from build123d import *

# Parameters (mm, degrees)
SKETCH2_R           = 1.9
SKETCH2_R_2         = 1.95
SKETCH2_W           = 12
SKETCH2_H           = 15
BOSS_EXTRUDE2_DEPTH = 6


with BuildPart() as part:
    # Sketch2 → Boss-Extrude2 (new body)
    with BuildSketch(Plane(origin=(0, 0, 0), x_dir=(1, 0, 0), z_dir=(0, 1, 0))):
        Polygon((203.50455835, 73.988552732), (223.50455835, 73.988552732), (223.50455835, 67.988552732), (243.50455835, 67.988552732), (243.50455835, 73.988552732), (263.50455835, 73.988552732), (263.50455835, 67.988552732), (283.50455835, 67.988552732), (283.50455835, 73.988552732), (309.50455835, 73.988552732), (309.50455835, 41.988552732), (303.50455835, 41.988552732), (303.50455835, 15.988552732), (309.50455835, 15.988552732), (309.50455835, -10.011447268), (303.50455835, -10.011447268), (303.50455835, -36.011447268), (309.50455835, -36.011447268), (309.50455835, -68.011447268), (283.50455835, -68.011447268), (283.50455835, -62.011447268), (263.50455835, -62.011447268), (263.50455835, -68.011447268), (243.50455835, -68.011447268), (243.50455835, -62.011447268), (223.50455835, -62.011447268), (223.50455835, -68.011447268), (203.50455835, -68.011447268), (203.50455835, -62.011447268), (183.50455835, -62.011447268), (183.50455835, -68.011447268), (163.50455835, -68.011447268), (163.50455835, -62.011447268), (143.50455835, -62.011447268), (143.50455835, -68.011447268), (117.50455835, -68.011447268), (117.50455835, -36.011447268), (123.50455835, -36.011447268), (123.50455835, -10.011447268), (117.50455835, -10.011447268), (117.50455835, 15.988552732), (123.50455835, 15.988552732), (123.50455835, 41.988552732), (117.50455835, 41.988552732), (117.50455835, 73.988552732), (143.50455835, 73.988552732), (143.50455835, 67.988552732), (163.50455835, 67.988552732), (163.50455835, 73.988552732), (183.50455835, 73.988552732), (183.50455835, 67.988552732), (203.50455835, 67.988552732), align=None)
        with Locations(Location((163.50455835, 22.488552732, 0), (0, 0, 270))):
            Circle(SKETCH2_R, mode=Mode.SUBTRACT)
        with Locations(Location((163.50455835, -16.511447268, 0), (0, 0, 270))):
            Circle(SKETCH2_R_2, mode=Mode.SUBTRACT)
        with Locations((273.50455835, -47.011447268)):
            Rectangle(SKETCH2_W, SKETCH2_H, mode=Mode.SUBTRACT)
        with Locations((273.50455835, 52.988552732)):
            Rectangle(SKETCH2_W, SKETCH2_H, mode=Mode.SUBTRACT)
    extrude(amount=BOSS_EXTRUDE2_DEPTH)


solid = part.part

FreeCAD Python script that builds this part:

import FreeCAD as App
import Part
import Sketcher

doc = App.newDocument("Part")
body = doc.addObject("PartDesign::Body", "Body")

sketch1 = body.newObject("Sketcher::SketchObject", "Sketch")
sketch1.AttachmentSupport = (doc.getObject("XZ_Plane"), [""])
sketch1.MapMode = "FlatFace"
sketch1.addGeometry([
    Part.LineSegment(App.Vector(223.5, -74, 0), App.Vector(203.5, -74, 0)),
    Part.LineSegment(App.Vector(203.5, -74, 0), App.Vector(203.5, -68, 0)),
    Part.LineSegment(App.Vector(203.5, -68, 0), App.Vector(183.5, -68, 0)),
    Part.LineSegment(App.Vector(183.5, -68, 0), App.Vector(183.5, -74, 0)),
    Part.LineSegment(App.Vector(183.5, -74, 0), App.Vector(163.5, -74, 0)),
    Part.LineSegment(App.Vector(163.5, -74, 0), App.Vector(163.5, -68, 0)),
    Part.LineSegment(App.Vector(163.5, -68, 0), App.Vector(143.5, -68, 0)),
    Part.LineSegment(App.Vector(143.5, -68, 0), App.Vector(143.5, -74, 0)),
    Part.LineSegment(App.Vector(143.5, -74, 0), App.Vector(117.5, -74, 0)),
    Part.LineSegment(App.Vector(117.5, -74, 0), App.Vector(117.5, -42, 0)),
    Part.LineSegment(App.Vector(117.5, -42, 0), App.Vector(123.5, -42, 0)),
    Part.LineSegment(App.Vector(123.5, -42, 0), App.Vector(123.5, -16, 0)),
    Part.LineSegment(App.Vector(123.5, -16, 0), App.Vector(117.5, -16, 0)),
    Part.LineSegment(App.Vector(117.5, -16, 0), App.Vector(117.5, 10, 0)),
    Part.LineSegment(App.Vector(117.5, 10, 0), App.Vector(123.5, 10, 0)),
    Part.LineSegment(App.Vector(123.5, 10, 0), App.Vector(123.5, 36, 0)),
    Part.LineSegment(App.Vector(123.5, 36, 0), App.Vector(117.5, 36, 0)),
    Part.LineSegment(App.Vector(117.5, 36, 0), App.Vector(117.5, 68, 0)),
    Part.LineSegment(App.Vector(117.5, 68, 0), App.Vector(143.5, 68, 0)),
    Part.LineSegment(App.Vector(143.5, 68, 0), App.Vector(143.5, 62, 0)),
    Part.LineSegment(App.Vector(143.5, 62, 0), App.Vector(163.5, 62, 0)),
    Part.LineSegment(App.Vector(163.5, 62, 0), App.Vector(163.5, 68, 0)),
    Part.LineSegment(App.Vector(163.5, 68, 0), App.Vector(183.5, 68, 0)),
    Part.LineSegment(App.Vector(183.5, 68, 0), App.Vector(183.5, 62, 0)),
    Part.LineSegment(App.Vector(183.5, 62, 0), App.Vector(203.5, 62, 0)),
    Part.LineSegment(App.Vector(203.5, 62, 0), App.Vector(203.5, 68, 0)),
    Part.LineSegment(App.Vector(203.5, 68, 0), App.Vector(223.5, 68, 0)),
    Part.LineSegment(App.Vector(223.5, 68, 0), App.Vector(223.5, 62, 0)),
    Part.LineSegment(App.Vector(223.5, 62, 0), App.Vector(243.5, 62, 0)),
    Part.LineSegment(App.Vector(243.5, 62, 0), App.Vector(243.5, 68, 0)),
    Part.LineSegment(App.Vector(243.5, 68, 0), App.Vector(263.5, 68, 0)),
    Part.LineSegment(App.Vector(263.5, 68, 0), App.Vector(263.5, 62, 0)),
    Part.LineSegment(App.Vector(263.5, 62, 0), App.Vector(283.5, 62, 0)),
    Part.LineSegment(App.Vector(283.5, 62, 0), App.Vector(283.5, 68, 0)),
    Part.LineSegment(App.Vector(283.5, 68, 0), App.Vector(309.5, 68, 0)),
    Part.LineSegment(App.Vector(309.5, 68, 0), App.Vector(309.5, 36, 0)),
    Part.LineSegment(App.Vector(309.5, 36, 0), App.Vector(303.5, 36, 0)),
    Part.LineSegment(App.Vector(303.5, 36, 0), App.Vector(303.5, 10, 0)),
    Part.LineSegment(App.Vector(303.5, 10, 0), App.Vector(309.5, 10, 0)),
    Part.LineSegment(App.Vector(309.5, 10, 0), App.Vector(309.5, -16, 0)),
    Part.LineSegment(App.Vector(309.5, -16, 0), App.Vector(303.5, -16, 0)),
    Part.LineSegment(App.Vector(303.5, -16, 0), App.Vector(303.5, -42, 0)),
    Part.LineSegment(App.Vector(303.5, -42, 0), App.Vector(309.5, -42, 0)),
    Part.LineSegment(App.Vector(309.5, -42, 0), App.Vector(309.5, -74, 0)),
    Part.LineSegment(App.Vector(309.5, -74, 0), App.Vector(283.5, -74, 0)),
    Part.LineSegment(App.Vector(283.5, -74, 0), App.Vector(283.5, -68, 0)),
    Part.LineSegment(App.Vector(283.5, -68, 0), App.Vector(263.5, -68, 0)),
    Part.LineSegment(App.Vector(263.5, -68, 0), App.Vector(263.5, -74, 0)),
    Part.LineSegment(App.Vector(263.5, -74, 0), App.Vector(243.5, -74, 0)),
    Part.LineSegment(App.Vector(243.5, -74, 0), App.Vector(243.5, -68, 0)),
    Part.LineSegment(App.Vector(243.5, -68, 0), App.Vector(223.5, -68, 0)),
    Part.LineSegment(App.Vector(223.5, -68, 0), App.Vector(223.5, -74, 0)),
    Part.LineSegment(App.Vector(267.5, 54.5, 0), App.Vector(267.5, 39.5, 0)),
    Part.LineSegment(App.Vector(267.5, 39.5, 0), App.Vector(279.5, 39.5, 0)),
    Part.LineSegment(App.Vector(279.5, 39.5, 0), App.Vector(279.5, 54.5, 0)),
    Part.LineSegment(App.Vector(279.5, 54.5, 0), App.Vector(267.5, 54.5, 0)),
    Part.Circle(App.Vector(163.5, 16.5, 0), App.Vector(0, 0, 1), 1.9),
    Part.LineSegment(App.Vector(267.5, -45.5, 0), App.Vector(267.5, -60.5, 0)),
    Part.LineSegment(App.Vector(267.5, -60.5, 0), App.Vector(279.5, -60.5, 0)),
    Part.LineSegment(App.Vector(279.5, -60.5, 0), App.Vector(279.5, -45.5, 0)),
    Part.LineSegment(App.Vector(279.5, -45.5, 0), App.Vector(267.5, -45.5, 0)),
    Part.Circle(App.Vector(163.5, -22.5, 0), App.Vector(0, 0, 1), 1.9),
], False)
sketch1.addConstraint([
    Sketcher.Constraint("Coincident", 0, 2, 1, 1),
    Sketcher.Constraint("Coincident", 1, 2, 2, 1),
    Sketcher.Constraint("Coincident", 2, 2, 3, 1),
    Sketcher.Constraint("Coincident", 3, 2, 4, 1),
    Sketcher.Constraint("Coincident", 4, 2, 5, 1),
    Sketcher.Constraint("Coincident", 5, 2, 6, 1),
    Sketcher.Constraint("Coincident", 6, 2, 7, 1),
    Sketcher.Constraint("Coincident", 7, 2, 8, 1),
    Sketcher.Constraint("Coincident", 8, 2, 9, 1),
    Sketcher.Constraint("Coincident", 9, 2, 10, 1),
    Sketcher.Constraint("Coincident", 10, 2, 11, 1),
    Sketcher.Constraint("Coincident", 11, 2, 12, 1),
    Sketcher.Constraint("Coincident", 12, 2, 13, 1),
    Sketcher.Constraint("Coincident", 13, 2, 14, 1),
    Sketcher.Constraint("Coincident", 14, 2, 15, 1),
    Sketcher.Constraint("Coincident", 15, 2, 16, 1),
    Sketcher.Constraint("Coincident", 16, 2, 17, 1),
    Sketcher.Constraint("Coincident", 17, 2, 18, 1),
    Sketcher.Constraint("Coincident", 18, 2, 19, 1),
    Sketcher.Constraint("Coincident", 19, 2, 20, 1),
    Sketcher.Constraint("Coincident", 20, 2, 21, 1),
    Sketcher.Constraint("Coincident", 21, 2, 22, 1),
    Sketcher.Constraint("Coincident", 22, 2, 23, 1),
    Sketcher.Constraint("Coincident", 23, 2, 24, 1),
    Sketcher.Constraint("Coincident", 24, 2, 25, 1),
    Sketcher.Constraint("Coincident", 25, 2, 26, 1),
    Sketcher.Constraint("Coincident", 26, 2, 27, 1),
    Sketcher.Constraint("Coincident", 27, 2, 28, 1),
    Sketcher.Constraint("Coincident", 28, 2, 29, 1),
    Sketcher.Constraint("Coincident", 29, 2, 30, 1),
    Sketcher.Constraint("Coincident", 30, 2, 31, 1),
    Sketcher.Constraint("Coincident", 31, 2, 32, 1),
    Sketcher.Constraint("Coincident", 32, 2, 33, 1),
    Sketcher.Constraint("Coincident", 33, 2, 34, 1),
    Sketcher.Constraint("Coincident", 34, 2, 35, 1),
    Sketcher.Constraint("Coincident", 35, 2, 36, 1),
    Sketcher.Constraint("Coincident", 36, 2, 37, 1),
    Sketcher.Constraint("Coincident", 37, 2, 38, 1),
    Sketcher.Constraint("Coincident", 38, 2, 39, 1),
    Sketcher.Constraint("Coincident", 39, 2, 40, 1),
    Sketcher.Constraint("Coincident", 40, 2, 41, 1),
    Sketcher.Constraint("Coincident", 41, 2, 42, 1),
    Sketcher.Constraint("Coincident", 42, 2, 43, 1),
    Sketcher.Constraint("Coincident", 43, 2, 44, 1),
    Sketcher.Constraint("Coincident", 44, 2, 45, 1),
    Sketcher.Constraint("Coincident", 45, 2, 46, 1),
    Sketcher.Constraint("Coincident", 46, 2, 47, 1),
    Sketcher.Constraint("Coincident", 47, 2, 48, 1),
    Sketcher.Constraint("Coincident", 48, 2, 49, 1),
    Sketcher.Constraint("Coincident", 49, 2, 50, 1),
    Sketcher.Constraint("Coincident", 50, 2, 51, 1),
    Sketcher.Constraint("Coincident", 51, 2, 0, 1),
    Sketcher.Constraint("Coincident", 52, 2, 53, 1),
    Sketcher.Constraint("Coincident", 53, 2, 54, 1),
    Sketcher.Constraint("Coincident", 54, 2, 55, 1),
    Sketcher.Constraint("Coincident", 55, 2, 52, 1),
    Sketcher.Constraint("Coincident", 57, 2, 58, 1),
    Sketcher.Constraint("Coincident", 58, 2, 59, 1),
    Sketcher.Constraint("Coincident", 59, 2, 60, 1),
    Sketcher.Constraint("Coincident", 60, 2, 57, 1),
    Sketcher.Constraint("Horizontal", 0),
    Sketcher.Constraint("Vertical", 1),
    Sketcher.Constraint("Horizontal", 2),
    Sketcher.Constraint("Vertical", 3),
    Sketcher.Constraint("Horizontal", 4),
    Sketcher.Constraint("Vertical", 5),
    Sketcher.Constraint("Horizontal", 6),
    Sketcher.Constraint("Vertical", 7),
    Sketcher.Constraint("Horizontal", 8),
    Sketcher.Constraint("Vertical", 9),
    Sketcher.Constraint("Horizontal", 10),
    Sketcher.Constraint("Vertical", 11),
    Sketcher.Constraint("Horizontal", 12),
    Sketcher.Constraint("Vertical", 13),
    Sketcher.Constraint("Horizontal", 14),
    Sketcher.Constraint("Vertical", 15),
    Sketcher.Constraint("Horizontal", 16),
    Sketcher.Constraint("Vertical", 17),
    Sketcher.Constraint("Horizontal", 18),
    Sketcher.Constraint("Vertical", 19),
    Sketcher.Constraint("Horizontal", 20),
    Sketcher.Constraint("Vertical", 21),
    Sketcher.Constraint("Horizontal", 22),
    Sketcher.Constraint("Vertical", 23),
    Sketcher.Constraint("Horizontal", 24),
    Sketcher.Constraint("Vertical", 25),
    Sketcher.Constraint("Horizontal", 26),
    Sketcher.Constraint("Vertical", 27),
    Sketcher.Constraint("Horizontal", 28),
    Sketcher.Constraint("Vertical", 29),
    Sketcher.Constraint("Horizontal", 30),
    Sketcher.Constraint("Vertical", 31),
    Sketcher.Constraint("Horizontal", 32),
    Sketcher.Constraint("Vertical", 33),
    Sketcher.Constraint("Horizontal", 34),
    Sketcher.Constraint("Vertical", 35),
    Sketcher.Constraint("Horizontal", 36),
    Sketcher.Constraint("Vertical", 37),
    Sketcher.Constraint("Horizontal", 38),
    Sketcher.Constraint("Vertical", 39),
    Sketcher.Constraint("Horizontal", 40),
    Sketcher.Constraint("Vertical", 41),
    Sketcher.Constraint("Horizontal", 42),
    Sketcher.Constraint("Vertical", 43),
    Sketcher.Constraint("Horizontal", 44),
    Sketcher.Constraint("Vertical", 45),
    Sketcher.Constraint("Horizontal", 46),
    Sketcher.Constraint("Vertical", 47),
    Sketcher.Constraint("Horizontal", 48),
    Sketcher.Constraint("Vertical", 49),
    Sketcher.Constraint("Horizontal", 50),
    Sketcher.Constraint("Vertical", 51),
    Sketcher.Constraint("Vertical", 52),
    Sketcher.Constraint("Horizontal", 53),
    Sketcher.Constraint("Vertical", 54),
    Sketcher.Constraint("Horizontal", 55),
    Sketcher.Constraint("Vertical", 57),
    Sketcher.Constraint("Horizontal", 58),
    Sketcher.Constraint("Vertical", 59),
    Sketcher.Constraint("Horizontal", 60),
    Sketcher.Constraint("Horizontal", 0, 2, 3, 2),
    Sketcher.Constraint("Horizontal", 2, 2, 5, 2),
    Sketcher.Constraint("Horizontal", 4, 2, 7, 2),
    Sketcher.Constraint("Horizontal", 18, 2, 21, 2),
    Sketcher.Constraint("Horizontal", 20, 2, 23, 2),
    Sketcher.Constraint("Horizontal", 22, 2, 25, 2),
    Sketcher.Constraint("Horizontal", 24, 2, 27, 2),
    Sketcher.Constraint("Horizontal", 26, 2, 29, 2),
    Sketcher.Constraint("Horizontal", 28, 2, 31, 2),
    Sketcher.Constraint("Horizontal", 30, 2, 33, 2),
    Sketcher.Constraint("Horizontal", 16, 2, 35, 2),
    Sketcher.Constraint("Horizontal", 14, 2, 37, 2),
    Sketcher.Constraint("Horizontal", 12, 2, 39, 2),
    Sketcher.Constraint("Horizontal", 10, 2, 41, 2),
    Sketcher.Constraint("Horizontal", 8, 2, 43, 2),
    Sketcher.Constraint("Horizontal", 6, 2, 45, 2),
    Sketcher.Constraint("Horizontal", 44, 2, 47, 2),
    Sketcher.Constraint("Horizontal", 46, 2, 49, 2),
    Sketcher.Constraint("Vertical", 56, 3, 61, 3),
    Sketcher.Constraint("Vertical", 61, 3, 4, 2),
    Sketcher.Constraint("Vertical", 9, 2, 12, 2),
    Sketcher.Constraint("Vertical", 11, 2, 14, 2),
    Sketcher.Constraint("Vertical", 13, 2, 16, 2),
    Sketcher.Constraint("Vertical", 7, 2, 18, 2),
    Sketcher.Constraint("Vertical", 5, 2, 20, 2),
    Sketcher.Constraint("Vertical", 3, 2, 22, 2),
    Sketcher.Constraint("Vertical", 1, 2, 24, 2),
    Sketcher.Constraint("Vertical", 35, 2, 38, 2),
    Sketcher.Constraint("Vertical", 37, 2, 40, 2),
    Sketcher.Constraint("Vertical", 39, 2, 42, 2),
    Sketcher.Constraint("Vertical", 33, 2, 44, 2),
    Sketcher.Constraint("Vertical", 31, 2, 46, 2),
    Sketcher.Constraint("Vertical", 29, 2, 48, 2),
    Sketcher.Constraint("Vertical", 27, 2, 50, 2),
    Sketcher.Constraint("Vertical", 55, 2, 57, 2),
    Sketcher.Constraint("Vertical", 54, 2, 58, 2),
    Sketcher.Constraint("Equal", 0, 2),
    Sketcher.Constraint("Equal", 2, 4),
    Sketcher.Constraint("Equal", 4, 6),
    Sketcher.Constraint("Equal", 26, 28),
    Sketcher.Constraint("Equal", 28, 30),
    Sketcher.Constraint("Equal", 30, 32),
    Sketcher.Constraint("Equal", 18, 34),
    Sketcher.Constraint("Equal", 16, 36),
    Sketcher.Constraint("Equal", 42, 1),
    Sketcher.Constraint("Equal", 44, 11),
    Sketcher.Constraint("Equal", 11, 13),
    Sketcher.Constraint("Equal", 13, 15),
    Sketcher.Constraint("Equal", 9, 17),
    Sketcher.Constraint("Equal", 7, 19),
    Sketcher.Constraint("Equal", 54, 57),
    Sketcher.Constraint("Diameter", 56, 3.9),
    Sketcher.Constraint("Diameter", 61, 3.8),
    Sketcher.Constraint("DistanceX", 0, 2, 0, 1, 20.0),
    Sketcher.Constraint("DistanceX", 8, 2, 8, 1, 26.0),
    Sketcher.Constraint("DistanceX", 10, 1, 10, 2, 6.0),
    Sketcher.Constraint("DistanceX", 53, 1, 53, 2, 12.0),
    Sketcher.Constraint("DistanceY", 9, 1, 9, 2, 32.0),
    Sketcher.Constraint("DistanceY", 52, 2, 52, 1, 15.0),
    Sketcher.Constraint("DistanceX", -1, 1, 56, 3, 163.504558),
    Sketcher.Constraint("DistanceX", -1, 1, 52, 2, 267.504558),
    Sketcher.Constraint("DistanceY", -1, 1, 56, 3, 16.511447),
    Sketcher.Constraint("DistanceY", 61, 3, -1, 1, 22.488553),
    Sketcher.Constraint("DistanceY", 0, 2, -1, 1, 73.988553),
    Sketcher.Constraint("DistanceY", -1, 1, 52, 2, 39.511447),
    Sketcher.Constraint("DistanceY", 57, 2, -1, 1, 60.488553),
])
pad1 = body.newObject("PartDesign::Pad", "Pad")
pad1.Profile = sketch1
pad1.Length = 6
pad1.Reversed = True

doc.recompute()
